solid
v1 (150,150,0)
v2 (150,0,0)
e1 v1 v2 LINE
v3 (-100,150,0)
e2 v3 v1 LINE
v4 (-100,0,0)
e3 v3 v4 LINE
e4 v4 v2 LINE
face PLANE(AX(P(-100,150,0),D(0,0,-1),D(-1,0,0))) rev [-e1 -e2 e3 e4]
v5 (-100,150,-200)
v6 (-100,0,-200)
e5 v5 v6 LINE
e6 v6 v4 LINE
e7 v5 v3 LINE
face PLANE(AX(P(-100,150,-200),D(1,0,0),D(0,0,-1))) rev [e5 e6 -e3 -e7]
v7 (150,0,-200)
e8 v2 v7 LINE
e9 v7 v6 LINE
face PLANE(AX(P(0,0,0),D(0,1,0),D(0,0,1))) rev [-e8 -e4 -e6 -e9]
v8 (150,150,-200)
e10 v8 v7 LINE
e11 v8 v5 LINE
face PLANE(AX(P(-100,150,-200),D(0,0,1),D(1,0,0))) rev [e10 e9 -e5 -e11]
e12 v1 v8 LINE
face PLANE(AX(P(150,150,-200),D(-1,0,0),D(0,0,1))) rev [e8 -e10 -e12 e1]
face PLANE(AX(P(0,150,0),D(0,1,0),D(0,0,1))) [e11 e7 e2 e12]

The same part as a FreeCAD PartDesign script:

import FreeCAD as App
import Part
import Sketcher
from FreeCAD import Vector


def add_polygon(sketch, points):
    """Adds a closed chain of lines whose ends are joined by coincident constraints."""
    first, n = sketch.GeometryCount, len(points)
    for a, b in zip(points, points[1:] + points[:1]):
        sketch.addGeometry(Part.LineSegment(App.Vector(*a, 0), App.Vector(*b, 0)), False)
    for i in range(n):
        sketch.addConstraint(Sketcher.Constraint("Coincident", first + i, 2, first + (i + 1) % n, 1))

doc = App.newDocument("Part")
body = doc.addObject("PartDesign::Body", "Body")

sketch1 = doc.addObject("Sketcher::SketchObject", "Sketch")
body.addObject(sketch1)
sketch1.AttachmentSupport = (doc.XZ_Plane, [""])
sketch1.MapMode = "FlatFace"
add_polygon(sketch1, [(-100, -200), (-100, 0), (150, 0), (150, -200)])
sketch1.addConstraint([
    Sketcher.Constraint("Vertical", 0),
    Sketcher.Constraint("Horizontal", 1),
    Sketcher.Constraint("Vertical", 2),
    Sketcher.Constraint("Horizontal", 3),
    Sketcher.Constraint("PointOnObject", 0, 2, -1),
    Sketcher.Constraint("DistanceX", 1, 1, 1, 2, 250.0),
    Sketcher.Constraint("DistanceY", 0, 1, 0, 2, 200.0),
    Sketcher.Constraint("DistanceX", 0, 2, -1, 1, 100.0),
])
pad1 = doc.addObject("PartDesign::Pad", "Pad")
body.addObject(pad1)
pad1.Profile = sketch1
pad1.Length = 150
pad1.Reversed = True

doc.recompute()
